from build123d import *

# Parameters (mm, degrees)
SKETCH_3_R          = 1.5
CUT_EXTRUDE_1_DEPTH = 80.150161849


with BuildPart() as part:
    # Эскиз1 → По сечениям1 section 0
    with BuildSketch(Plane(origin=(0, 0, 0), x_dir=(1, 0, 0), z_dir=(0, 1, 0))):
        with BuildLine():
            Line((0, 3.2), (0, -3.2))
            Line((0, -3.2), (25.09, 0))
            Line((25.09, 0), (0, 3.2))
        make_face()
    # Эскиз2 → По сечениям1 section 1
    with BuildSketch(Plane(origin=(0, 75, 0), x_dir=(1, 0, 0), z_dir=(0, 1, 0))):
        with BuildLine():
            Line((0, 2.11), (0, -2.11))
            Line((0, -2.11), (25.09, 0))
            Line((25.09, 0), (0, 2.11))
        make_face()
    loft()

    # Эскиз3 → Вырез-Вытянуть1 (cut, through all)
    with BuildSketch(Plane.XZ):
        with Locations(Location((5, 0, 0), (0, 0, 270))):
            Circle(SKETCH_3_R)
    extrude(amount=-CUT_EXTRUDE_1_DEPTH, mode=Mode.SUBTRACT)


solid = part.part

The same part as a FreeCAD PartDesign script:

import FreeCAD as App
import Part
import Sketcher

V = App.Vector

doc = App.newDocument("Part")
params = doc.addObject("Spreadsheet::Sheet", "Params")
for row, (alias, value) in enumerate([
    ("sketch1_height", "6.4 mm"),
    ("sketch2_height", "4.22 mm"),
    ("sketch3_diameter", "3 mm"),
], start=1):
    params.set(f"A{row}", alias)
    params.set(f"B{row}", "=" + value)
    params.setAlias(f"B{row}", alias)

body = doc.addObject("PartDesign::Body", "Body")

# Sketch on XZ plane
sketch1 = body.newObject("Sketcher::SketchObject", "Sketch")
sketch1.AttachmentSupport = (doc.getObject("XZ_Plane"), [""])
sketch1.MapMode = "FlatFace"
sketch1.addGeometry([
    Part.LineSegment(V(0, -3.2, 0), V(0, 3.2, 0)),
    Part.LineSegment(V(0, 3.2, 0), V(25.09, 0, 0)),
    Part.LineSegment(V(25.09, 0, 0), V(0, -3.2, 0)),
], False)
sketch1.addConstraint([
    Sketcher.Constraint("Coincident", 0, 2, 1, 1),
    Sketcher.Constraint("Coincident", 1, 2, 2, 1),
    Sketcher.Constraint("Coincident", 2, 2, 0, 1),
    Sketcher.Constraint("Vertical", 0),
    Sketcher.Constraint("Symmetric", 0, 2, 2, 2, -1, 1),
    Sketcher.Constraint("PointOnObject", 1, 2, -1),
    Sketcher.Constraint("DistanceY", 0, 1, 0, 2, 6.4),
    Sketcher.Constraint("DistanceX", -1, 1, 1, 2, 25.09),
])
sketch1.setExpression("Constraints[6]", "Params.sketch1_height")

# Sketch on XZ plane
sketch2 = body.newObject("Sketcher::SketchObject", "Sketch001")
sketch2.AttachmentSupport = (doc.getObject("XZ_Plane"), [""])
sketch2.MapMode = "FlatFace"
sketch2.AttachmentOffset = App.Placement(V(0, 0, -75), App.Rotation())
sketch2.addGeometry([
    Part.LineSegment(V(0, -2.11, 0), V(0, 2.11, 0)),
    Part.LineSegment(V(0, 2.11, 0), V(25.09, 0, 0)),
    Part.LineSegment(V(25.09, 0, 0), V(0, -2.11, 0)),
], False)
sketch2.addConstraint([
    Sketcher.Constraint("Coincident", 0, 2, 1, 1),
    Sketcher.Constraint("Coincident", 1, 2, 2, 1),
    Sketcher.Constraint("Coincident", 2, 2, 0, 1),
    Sketcher.Constraint("Vertical", 0),
    Sketcher.Constraint("Symmetric", 0, 2, 2, 2, -1, 1),
    Sketcher.Constraint("PointOnObject", 1, 2, -1),
    Sketcher.Constraint("DistanceY", 0, 1, 0, 2, 4.22),
    Sketcher.Constraint("DistanceX", -1, 1, 1, 2, 25.09),
])
sketch2.setExpression("Constraints[6]", "Params.sketch2_height")

additiveloft = body.newObject("PartDesign::AdditiveLoft", "AdditiveLoft")
additiveloft.Profile = sketch1
additiveloft.Sections = [sketch2]

# Sketch on XZ plane
sketch3 = body.newObject("Sketcher::SketchObject", "Sketch002")
sketch3.AttachmentSupport = (doc.getObject("XZ_Plane"), [""])
sketch3.MapMode = "FlatFace"
sketch3.addGeometry(Part.Circle(V(5, 0, 0), V(0, 0, 1), 1.5), False)
sketch3.addConstraint([
    Sketcher.Constraint("PointOnObject", 0, 3, -1),
    Sketcher.Constraint("Diameter", 0, 3.0),
    Sketcher.Constraint("DistanceX", -1, 1, 0, 3, 5.0),
])
sketch3.setExpression("Constraints[1]", "Params.sketch3_diameter")
pocket1 = body.newObject("PartDesign::Pocket", "Pocket")
pocket1.Profile = sketch3
pocket1.Type = "ThroughAll"

doc.recompute()
